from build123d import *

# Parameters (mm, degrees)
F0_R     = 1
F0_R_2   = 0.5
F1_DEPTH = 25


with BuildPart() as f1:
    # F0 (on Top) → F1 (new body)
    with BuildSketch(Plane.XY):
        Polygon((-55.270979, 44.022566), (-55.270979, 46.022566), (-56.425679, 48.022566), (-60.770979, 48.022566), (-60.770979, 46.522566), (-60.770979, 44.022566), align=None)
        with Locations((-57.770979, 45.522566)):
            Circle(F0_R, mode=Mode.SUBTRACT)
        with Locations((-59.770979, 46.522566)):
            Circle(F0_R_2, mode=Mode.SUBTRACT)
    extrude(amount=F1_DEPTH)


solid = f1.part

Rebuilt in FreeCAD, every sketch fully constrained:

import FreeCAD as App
import Part
import Sketcher
Q = App.Units.Quantity

doc = App.newDocument("Part")
body = doc.addObject("PartDesign::Body", "Body")

# Sketch on XY plane
sketch1 = body.newObject("Sketcher::SketchObject", "Sketch")
sketch1.AttachmentSupport = (doc.getObject("XY_Plane"), [""])
sketch1.MapMode = "FlatFace"
sketch1.addGeometry(Part.LineSegment(App.Vector(-55.3, 44, 0), App.Vector(-55.3, 46, 0)), False)
sketch1.addGeometry(Part.LineSegment(App.Vector(-55.3, 46, 0), App.Vector(-56.4, 48, 0)), False)
sketch1.addGeometry(Part.LineSegment(App.Vector(-56.4, 48, 0), App.Vector(-60.8, 48, 0)), False)
sketch1.addGeometry(Part.LineSegment(App.Vector(-60.8, 48, 0), App.Vector(-60.8, 44, 0)), False)
sketch1.addGeometry(Part.LineSegment(App.Vector(-60.8, 44, 0), App.Vector(-55.3, 44, 0)), False)
sketch1.addGeometry(Part.Circle(App.Vector(-57.8, 45.5, 0), App.Vector(0, 0, 1), 1), False)
sketch1.addGeometry(Part.Circle(App.Vector(-59.8, 46.5, 0), App.Vector(0, 0, 1), 0.5), False)
sketch1.addConstraint(Sketcher.Constraint("Coincident", 0, 2, 1, 1))
sketch1.addConstraint(Sketcher.Constraint("Coincident", 1, 2, 2, 1))
sketch1.addConstraint(Sketcher.Constraint("Coincident", 2, 2, 3, 1))
sketch1.addConstraint(Sketcher.Constraint("Coincident", 3, 2, 4, 1))
sketch1.addConstraint(Sketcher.Constraint("Coincident", 4, 2, 0, 1))
sketch1.addConstraint(Sketcher.Constraint("Vertical", 0))
sketch1.addConstraint(Sketcher.Constraint("Horizontal", 2))
sketch1.addConstraint(Sketcher.Constraint("Vertical", 3))
sketch1.addConstraint(Sketcher.Constraint("Horizontal", 4))
sketch1.addConstraint(Sketcher.Constraint("Diameter", 5, 2.0))
sketch1.addConstraint(Sketcher.Constraint("Diameter", 6, 1.0))
sketch1.addConstraint(Sketcher.Constraint("DistanceY", 0, 1, 0, 2, 2.0))
sketch1.addConstraint(Sketcher.Constraint("DistanceY", 3, 2, 3, 1, 4.0))
sketch1.addConstraint(Sketcher.Constraint("Angle", 1, Q("119.999988 deg")))
sketch1.addConstraint(Sketcher.Constraint("DistanceX", 4, 1, 4, 2, 5.5))
sketch1.addConstraint(Sketcher.Constraint("DistanceX", 6, 3, 5, 3, 2.0))
sketch1.addConstraint(Sketcher.Constraint("DistanceY", 5, 3, 6, 3, 1.0))
sketch1.addConstraint(Sketcher.Constraint("DistanceX", 2, 2, 6, 3, 1.0))
sketch1.addConstraint(Sketcher.Constraint("DistanceY", 5, 3, 0, 2, 0.5))
sketch1.addConstraint(Sketcher.Constraint("DistanceX", 5, 3, -1, 1, 57.770979))
sketch1.addConstraint(Sketcher.Constraint("DistanceY", -1, 1, 5, 3, 45.522566))
pad1 = body.newObject("PartDesign::Pad", "Pad")
pad1.Profile = sketch1
pad1.Length = 25

doc.recompute()
